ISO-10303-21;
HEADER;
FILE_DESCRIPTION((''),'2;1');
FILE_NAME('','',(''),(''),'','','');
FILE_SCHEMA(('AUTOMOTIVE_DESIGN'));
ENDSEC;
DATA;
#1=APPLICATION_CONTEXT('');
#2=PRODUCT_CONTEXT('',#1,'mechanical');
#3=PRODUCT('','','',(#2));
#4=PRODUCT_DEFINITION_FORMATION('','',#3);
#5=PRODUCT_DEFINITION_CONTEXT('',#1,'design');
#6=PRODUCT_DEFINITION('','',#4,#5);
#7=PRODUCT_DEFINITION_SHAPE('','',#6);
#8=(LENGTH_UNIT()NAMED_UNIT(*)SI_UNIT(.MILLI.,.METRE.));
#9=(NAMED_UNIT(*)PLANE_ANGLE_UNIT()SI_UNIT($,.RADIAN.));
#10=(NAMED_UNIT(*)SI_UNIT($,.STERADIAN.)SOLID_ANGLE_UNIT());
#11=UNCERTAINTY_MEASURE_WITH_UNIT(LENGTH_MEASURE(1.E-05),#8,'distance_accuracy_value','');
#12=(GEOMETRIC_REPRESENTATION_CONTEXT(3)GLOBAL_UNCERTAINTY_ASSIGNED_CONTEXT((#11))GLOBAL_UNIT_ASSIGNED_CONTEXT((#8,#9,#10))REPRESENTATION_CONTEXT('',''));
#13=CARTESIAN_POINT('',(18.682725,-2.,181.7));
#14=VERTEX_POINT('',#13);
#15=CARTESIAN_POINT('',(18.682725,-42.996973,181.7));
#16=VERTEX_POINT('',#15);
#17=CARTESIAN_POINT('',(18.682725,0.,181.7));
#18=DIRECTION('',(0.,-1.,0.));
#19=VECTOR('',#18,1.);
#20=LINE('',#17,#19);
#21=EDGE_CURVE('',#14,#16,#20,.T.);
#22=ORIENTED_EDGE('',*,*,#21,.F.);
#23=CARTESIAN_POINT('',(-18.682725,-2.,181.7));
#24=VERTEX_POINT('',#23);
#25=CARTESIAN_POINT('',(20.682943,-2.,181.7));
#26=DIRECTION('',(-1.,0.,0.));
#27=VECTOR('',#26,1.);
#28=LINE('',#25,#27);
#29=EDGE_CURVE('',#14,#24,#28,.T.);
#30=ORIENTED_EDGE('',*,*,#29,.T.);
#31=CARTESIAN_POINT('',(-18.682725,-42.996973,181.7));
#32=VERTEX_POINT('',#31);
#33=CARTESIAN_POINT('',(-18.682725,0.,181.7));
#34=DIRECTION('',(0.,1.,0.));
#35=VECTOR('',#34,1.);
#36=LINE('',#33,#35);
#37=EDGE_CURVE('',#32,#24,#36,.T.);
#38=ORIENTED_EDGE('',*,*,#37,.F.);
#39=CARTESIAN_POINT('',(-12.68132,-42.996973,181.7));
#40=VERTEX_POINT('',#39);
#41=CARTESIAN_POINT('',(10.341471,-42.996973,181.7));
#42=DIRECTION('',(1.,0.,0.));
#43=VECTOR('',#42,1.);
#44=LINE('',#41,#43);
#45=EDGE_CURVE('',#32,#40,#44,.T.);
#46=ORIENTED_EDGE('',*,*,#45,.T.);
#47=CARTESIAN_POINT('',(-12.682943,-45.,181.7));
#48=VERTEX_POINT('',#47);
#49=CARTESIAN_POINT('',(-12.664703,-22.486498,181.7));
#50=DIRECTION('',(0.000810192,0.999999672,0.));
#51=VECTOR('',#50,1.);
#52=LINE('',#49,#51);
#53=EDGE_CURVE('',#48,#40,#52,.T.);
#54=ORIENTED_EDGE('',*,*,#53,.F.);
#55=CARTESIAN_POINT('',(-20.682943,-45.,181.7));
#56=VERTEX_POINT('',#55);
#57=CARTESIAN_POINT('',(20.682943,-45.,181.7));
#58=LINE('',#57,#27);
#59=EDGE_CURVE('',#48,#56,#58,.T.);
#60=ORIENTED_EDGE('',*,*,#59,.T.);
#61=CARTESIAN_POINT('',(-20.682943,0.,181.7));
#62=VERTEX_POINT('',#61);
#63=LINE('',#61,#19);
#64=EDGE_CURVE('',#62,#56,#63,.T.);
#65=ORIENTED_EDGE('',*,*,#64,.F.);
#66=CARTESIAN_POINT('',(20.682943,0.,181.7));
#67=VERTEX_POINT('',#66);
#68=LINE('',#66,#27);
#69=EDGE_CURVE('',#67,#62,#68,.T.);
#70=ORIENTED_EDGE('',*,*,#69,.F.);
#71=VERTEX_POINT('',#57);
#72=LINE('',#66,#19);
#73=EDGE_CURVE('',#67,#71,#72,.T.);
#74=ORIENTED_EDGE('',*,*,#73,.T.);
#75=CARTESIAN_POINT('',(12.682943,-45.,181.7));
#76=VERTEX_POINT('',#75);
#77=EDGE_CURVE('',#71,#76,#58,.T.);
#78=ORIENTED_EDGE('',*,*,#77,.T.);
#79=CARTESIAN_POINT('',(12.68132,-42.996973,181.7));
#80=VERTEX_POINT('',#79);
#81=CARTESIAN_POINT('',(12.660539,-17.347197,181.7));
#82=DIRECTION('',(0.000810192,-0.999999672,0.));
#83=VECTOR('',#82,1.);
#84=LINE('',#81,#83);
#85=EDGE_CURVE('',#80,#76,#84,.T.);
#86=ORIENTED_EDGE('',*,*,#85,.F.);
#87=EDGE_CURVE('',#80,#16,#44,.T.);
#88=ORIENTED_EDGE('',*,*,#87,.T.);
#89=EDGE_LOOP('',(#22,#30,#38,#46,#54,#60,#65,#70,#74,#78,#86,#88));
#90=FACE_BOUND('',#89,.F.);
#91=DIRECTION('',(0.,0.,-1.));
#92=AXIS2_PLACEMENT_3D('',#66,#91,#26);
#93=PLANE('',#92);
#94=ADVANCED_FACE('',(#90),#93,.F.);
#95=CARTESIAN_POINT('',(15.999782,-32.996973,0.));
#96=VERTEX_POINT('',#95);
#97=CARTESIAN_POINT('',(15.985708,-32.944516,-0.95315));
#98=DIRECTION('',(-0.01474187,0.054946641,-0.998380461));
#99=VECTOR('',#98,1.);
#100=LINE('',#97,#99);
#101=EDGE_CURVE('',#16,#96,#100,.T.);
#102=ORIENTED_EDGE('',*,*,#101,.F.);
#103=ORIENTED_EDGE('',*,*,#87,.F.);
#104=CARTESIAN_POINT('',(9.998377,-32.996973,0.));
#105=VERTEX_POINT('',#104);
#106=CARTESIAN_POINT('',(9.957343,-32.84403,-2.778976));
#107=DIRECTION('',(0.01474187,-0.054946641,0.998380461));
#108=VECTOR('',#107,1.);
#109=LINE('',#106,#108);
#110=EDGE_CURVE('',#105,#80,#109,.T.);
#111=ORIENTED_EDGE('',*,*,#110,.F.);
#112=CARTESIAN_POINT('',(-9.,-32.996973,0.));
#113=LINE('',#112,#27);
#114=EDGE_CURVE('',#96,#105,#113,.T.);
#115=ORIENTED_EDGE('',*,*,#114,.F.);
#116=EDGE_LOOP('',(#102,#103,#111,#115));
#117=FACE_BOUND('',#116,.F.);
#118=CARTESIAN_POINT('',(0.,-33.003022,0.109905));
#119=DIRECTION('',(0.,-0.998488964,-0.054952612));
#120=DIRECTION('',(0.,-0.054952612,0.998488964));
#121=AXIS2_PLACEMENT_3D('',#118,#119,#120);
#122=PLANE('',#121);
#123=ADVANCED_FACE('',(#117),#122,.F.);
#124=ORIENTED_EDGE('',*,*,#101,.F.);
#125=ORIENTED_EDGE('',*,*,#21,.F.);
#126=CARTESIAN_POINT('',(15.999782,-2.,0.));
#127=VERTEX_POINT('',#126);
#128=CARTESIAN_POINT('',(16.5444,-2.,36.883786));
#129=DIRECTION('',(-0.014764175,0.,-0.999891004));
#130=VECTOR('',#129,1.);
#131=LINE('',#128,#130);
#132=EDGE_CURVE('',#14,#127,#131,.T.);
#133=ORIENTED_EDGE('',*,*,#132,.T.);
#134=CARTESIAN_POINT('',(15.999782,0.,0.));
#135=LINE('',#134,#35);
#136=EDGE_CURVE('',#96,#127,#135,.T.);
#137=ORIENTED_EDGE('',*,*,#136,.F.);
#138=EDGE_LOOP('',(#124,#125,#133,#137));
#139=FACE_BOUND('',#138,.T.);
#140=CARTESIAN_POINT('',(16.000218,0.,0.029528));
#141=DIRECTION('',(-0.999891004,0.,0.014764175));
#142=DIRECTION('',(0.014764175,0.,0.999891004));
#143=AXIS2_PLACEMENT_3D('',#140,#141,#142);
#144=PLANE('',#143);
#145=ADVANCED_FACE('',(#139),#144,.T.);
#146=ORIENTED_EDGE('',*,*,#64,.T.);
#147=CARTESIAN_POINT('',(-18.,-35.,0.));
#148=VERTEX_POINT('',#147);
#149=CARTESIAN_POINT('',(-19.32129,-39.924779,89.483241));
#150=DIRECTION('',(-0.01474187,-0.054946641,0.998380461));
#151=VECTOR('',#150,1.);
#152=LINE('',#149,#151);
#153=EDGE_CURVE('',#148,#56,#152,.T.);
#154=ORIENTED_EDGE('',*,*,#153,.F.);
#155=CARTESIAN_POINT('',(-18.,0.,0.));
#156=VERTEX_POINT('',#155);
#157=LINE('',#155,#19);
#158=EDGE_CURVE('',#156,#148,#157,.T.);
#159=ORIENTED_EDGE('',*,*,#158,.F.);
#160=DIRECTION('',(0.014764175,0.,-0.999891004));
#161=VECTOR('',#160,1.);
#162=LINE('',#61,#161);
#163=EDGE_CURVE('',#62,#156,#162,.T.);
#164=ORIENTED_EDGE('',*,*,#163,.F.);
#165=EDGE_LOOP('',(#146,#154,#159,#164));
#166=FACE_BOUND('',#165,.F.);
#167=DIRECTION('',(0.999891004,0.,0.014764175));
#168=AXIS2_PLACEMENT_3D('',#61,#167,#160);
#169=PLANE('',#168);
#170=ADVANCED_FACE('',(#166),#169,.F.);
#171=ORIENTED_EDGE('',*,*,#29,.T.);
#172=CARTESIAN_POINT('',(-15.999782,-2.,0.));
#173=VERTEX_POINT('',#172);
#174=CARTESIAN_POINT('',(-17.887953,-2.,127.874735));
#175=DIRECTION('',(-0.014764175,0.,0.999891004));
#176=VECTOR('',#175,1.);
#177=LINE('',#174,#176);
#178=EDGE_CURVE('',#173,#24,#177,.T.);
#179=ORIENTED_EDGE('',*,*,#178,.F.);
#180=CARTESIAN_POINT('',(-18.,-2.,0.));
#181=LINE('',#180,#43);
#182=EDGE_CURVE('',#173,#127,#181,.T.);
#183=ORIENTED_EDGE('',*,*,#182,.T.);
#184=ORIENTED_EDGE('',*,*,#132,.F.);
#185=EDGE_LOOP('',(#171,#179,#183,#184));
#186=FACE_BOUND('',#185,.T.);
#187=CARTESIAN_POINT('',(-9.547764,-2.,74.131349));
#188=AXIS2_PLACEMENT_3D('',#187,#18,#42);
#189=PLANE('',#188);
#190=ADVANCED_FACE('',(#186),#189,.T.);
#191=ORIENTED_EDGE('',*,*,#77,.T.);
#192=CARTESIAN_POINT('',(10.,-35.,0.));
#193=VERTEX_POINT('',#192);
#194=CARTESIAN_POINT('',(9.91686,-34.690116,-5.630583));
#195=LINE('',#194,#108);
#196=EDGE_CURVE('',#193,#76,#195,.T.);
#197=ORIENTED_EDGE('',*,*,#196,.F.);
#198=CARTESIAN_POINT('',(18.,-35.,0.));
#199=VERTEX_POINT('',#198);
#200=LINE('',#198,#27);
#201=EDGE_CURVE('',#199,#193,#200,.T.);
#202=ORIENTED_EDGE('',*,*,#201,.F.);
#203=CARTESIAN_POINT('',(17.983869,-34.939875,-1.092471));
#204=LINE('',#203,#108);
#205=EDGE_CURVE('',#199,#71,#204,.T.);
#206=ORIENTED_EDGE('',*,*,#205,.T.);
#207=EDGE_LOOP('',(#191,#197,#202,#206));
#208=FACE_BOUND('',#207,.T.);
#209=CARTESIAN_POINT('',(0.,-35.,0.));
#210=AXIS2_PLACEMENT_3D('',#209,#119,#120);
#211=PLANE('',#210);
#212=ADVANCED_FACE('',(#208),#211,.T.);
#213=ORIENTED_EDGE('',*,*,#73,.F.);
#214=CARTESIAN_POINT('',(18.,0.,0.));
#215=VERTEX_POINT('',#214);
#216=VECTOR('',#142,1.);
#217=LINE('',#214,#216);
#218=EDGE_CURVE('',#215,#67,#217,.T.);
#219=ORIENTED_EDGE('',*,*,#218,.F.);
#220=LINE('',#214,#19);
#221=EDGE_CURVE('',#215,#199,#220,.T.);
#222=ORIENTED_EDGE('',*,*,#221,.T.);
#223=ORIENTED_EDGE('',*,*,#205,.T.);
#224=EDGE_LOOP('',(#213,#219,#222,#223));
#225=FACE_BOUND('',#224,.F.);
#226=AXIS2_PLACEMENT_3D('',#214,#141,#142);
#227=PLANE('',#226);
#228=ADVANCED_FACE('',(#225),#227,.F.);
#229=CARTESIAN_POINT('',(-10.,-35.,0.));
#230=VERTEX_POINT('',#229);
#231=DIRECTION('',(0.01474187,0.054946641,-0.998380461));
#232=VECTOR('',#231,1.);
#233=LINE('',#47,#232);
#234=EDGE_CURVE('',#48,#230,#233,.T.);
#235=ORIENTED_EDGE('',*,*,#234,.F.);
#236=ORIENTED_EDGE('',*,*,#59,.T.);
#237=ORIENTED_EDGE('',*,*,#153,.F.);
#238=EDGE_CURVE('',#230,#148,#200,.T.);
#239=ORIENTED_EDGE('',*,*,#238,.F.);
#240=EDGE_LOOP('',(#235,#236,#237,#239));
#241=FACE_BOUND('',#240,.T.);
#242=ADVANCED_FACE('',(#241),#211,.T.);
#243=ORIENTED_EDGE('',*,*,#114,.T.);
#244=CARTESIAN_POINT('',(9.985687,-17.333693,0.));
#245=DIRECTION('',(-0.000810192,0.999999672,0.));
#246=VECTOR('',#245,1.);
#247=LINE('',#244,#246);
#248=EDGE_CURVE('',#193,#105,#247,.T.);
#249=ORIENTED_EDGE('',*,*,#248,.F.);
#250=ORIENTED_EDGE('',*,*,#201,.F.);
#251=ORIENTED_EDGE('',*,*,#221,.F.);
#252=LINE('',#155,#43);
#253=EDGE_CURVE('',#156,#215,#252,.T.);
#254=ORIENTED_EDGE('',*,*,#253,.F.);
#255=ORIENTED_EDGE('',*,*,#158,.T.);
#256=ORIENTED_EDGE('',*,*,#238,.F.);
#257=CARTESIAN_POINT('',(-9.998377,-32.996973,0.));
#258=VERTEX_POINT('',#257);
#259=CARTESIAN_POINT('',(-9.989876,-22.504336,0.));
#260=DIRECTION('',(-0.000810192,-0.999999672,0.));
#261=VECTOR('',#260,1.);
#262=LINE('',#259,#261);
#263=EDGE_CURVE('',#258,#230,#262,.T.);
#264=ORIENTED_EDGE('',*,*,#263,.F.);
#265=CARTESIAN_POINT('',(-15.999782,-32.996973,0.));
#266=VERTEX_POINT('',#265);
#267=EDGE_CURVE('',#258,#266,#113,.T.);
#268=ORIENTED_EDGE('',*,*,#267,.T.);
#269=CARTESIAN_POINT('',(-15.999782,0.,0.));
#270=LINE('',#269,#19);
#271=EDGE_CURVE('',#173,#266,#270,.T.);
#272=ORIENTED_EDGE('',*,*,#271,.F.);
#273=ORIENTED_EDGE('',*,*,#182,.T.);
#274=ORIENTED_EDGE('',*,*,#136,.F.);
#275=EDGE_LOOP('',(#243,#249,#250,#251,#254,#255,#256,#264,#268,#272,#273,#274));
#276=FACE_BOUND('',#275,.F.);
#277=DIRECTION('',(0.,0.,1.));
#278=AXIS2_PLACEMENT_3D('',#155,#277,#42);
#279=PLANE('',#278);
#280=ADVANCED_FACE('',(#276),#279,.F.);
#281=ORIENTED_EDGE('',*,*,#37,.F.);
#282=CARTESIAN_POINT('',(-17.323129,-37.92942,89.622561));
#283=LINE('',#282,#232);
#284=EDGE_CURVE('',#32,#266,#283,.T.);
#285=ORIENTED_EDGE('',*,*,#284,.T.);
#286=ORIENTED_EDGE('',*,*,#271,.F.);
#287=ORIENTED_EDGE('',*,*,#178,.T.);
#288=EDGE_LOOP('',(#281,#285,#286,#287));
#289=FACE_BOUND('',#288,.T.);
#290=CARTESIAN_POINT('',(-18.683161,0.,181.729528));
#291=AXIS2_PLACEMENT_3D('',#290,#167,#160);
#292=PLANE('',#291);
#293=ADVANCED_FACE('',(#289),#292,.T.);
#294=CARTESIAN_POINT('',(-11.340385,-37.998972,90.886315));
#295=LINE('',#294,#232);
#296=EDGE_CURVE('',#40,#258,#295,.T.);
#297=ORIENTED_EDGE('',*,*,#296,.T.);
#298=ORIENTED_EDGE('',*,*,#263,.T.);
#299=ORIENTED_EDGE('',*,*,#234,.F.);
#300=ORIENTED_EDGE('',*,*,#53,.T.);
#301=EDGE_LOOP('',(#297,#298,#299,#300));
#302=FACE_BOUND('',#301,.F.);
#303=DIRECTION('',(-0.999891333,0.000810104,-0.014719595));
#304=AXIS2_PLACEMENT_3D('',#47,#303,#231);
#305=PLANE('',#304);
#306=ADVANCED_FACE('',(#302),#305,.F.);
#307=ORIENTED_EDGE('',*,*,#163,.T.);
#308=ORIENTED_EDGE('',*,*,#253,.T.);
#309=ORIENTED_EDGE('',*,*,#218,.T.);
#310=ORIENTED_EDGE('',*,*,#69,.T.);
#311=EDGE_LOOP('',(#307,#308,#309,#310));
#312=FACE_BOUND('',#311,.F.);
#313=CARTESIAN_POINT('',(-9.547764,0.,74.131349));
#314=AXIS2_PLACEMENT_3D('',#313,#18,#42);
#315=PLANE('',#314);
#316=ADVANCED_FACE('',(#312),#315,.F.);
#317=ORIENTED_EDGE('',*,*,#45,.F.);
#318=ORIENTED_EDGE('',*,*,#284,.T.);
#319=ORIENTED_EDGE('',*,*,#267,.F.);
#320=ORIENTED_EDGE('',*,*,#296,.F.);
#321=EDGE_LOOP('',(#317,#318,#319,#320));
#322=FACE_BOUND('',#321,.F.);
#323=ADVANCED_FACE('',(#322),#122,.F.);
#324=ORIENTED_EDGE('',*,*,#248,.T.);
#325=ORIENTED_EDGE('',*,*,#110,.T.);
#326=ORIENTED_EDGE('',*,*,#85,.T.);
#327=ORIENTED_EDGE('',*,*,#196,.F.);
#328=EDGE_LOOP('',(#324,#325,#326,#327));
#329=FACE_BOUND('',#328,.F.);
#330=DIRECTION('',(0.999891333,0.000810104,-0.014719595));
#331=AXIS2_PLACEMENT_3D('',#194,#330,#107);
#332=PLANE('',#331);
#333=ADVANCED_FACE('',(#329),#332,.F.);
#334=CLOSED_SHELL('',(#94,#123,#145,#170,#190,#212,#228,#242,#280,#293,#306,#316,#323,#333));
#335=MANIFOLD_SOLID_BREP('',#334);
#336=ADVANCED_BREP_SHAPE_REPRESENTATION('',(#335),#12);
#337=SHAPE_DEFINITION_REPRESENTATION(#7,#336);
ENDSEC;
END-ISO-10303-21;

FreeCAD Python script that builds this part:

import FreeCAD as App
import Part
import Sketcher
from FreeCAD import Vector


def faces_at(feature, points):
    """Names of the faces that lie closest to the given points."""
    faces = feature.Shape.Faces
    near = lambda p: min(range(len(faces)), key=lambda i: faces[i].distToShape(Part.Vertex(*p))[0])
    return sorted({f"Face{near(p) + 1}" for p in points})


def add_polygon(sketch, points):
    """Adds a closed chain of lines whose ends are joined by coincident constraints."""
    first, n = sketch.GeometryCount, len(points)
    for a, b in zip(points, points[1:] + points[:1]):
        sketch.addGeometry(Part.LineSegment(App.Vector(*a, 0), App.Vector(*b, 0)), False)
    for i in range(n):
        sketch.addConstraint(Sketcher.Constraint("Coincident", first + i, 2, first + (i + 1) % n, 1))

doc = App.newDocument("Part")
body = doc.addObject("PartDesign::Body", "Body")

# Sketch on XZ plane
sketch1 = doc.addObject("Sketcher::SketchObject", "Sketch")
body.addObject(sketch1)
sketch1.AttachmentSupport = (doc.XZ_Plane, [""])
sketch1.MapMode = "FlatFace"
add_polygon(sketch1, [(-18, 0), (18, 0), (20.682943, 181.7), (-20.682943, 181.7)])  # lines 0-3
sketch1.addConstraint([
    Sketcher.Constraint("Horizontal", 0),
    Sketcher.Constraint("Horizontal", 2),
    Sketcher.Constraint("Symmetric", 0, 2, 3, 2, -1, 1),
    Sketcher.Constraint("Equal", 1, 3),
    Sketcher.Constraint("DistanceX", 0, 1, 0, 2, 36.0),
    Sketcher.Constraint("DistanceY", -1, 1, 1, 2, 181.7),
    Sketcher.Constraint("DistanceX", 2, 2, 2, 1, 41.365886),
])
pad1 = doc.addObject("PartDesign::Pad", "Pad")
body.addObject(pad1)
pad1.Profile = sketch1
pad1.Length = 50

# Sketch on YZ plane
sketch2 = doc.addObject("Sketcher::SketchObject", "Sketch001")
body.addObject(sketch2)
sketch2.AttachmentSupport = (doc.YZ_Plane, [""])
sketch2.MapMode = "FlatFace"
add_polygon(sketch2, [(-45, 181.7), (-50, 181.7), (-50, 0), (-35, 0)])  # lines 0-3
sketch2.addConstraint([
    Sketcher.Constraint("Horizontal", 0),
    Sketcher.Constraint("Vertical", 1),
    Sketcher.Constraint("Horizontal", 2),
    Sketcher.Constraint("PointOnObject", 1, 2, -1),
    Sketcher.Constraint("DistanceX", 0, 2, 0, 1, 5.0),
    Sketcher.Constraint("DistanceX", 2, 1, 2, 2, 15.0),
    Sketcher.Constraint("DistanceY", 1, 2, 1, 1, 181.7),
    Sketcher.Constraint("DistanceX", 0, 2, -1, 1, 50.0),
])
pocket1 = doc.addObject("PartDesign::Pocket", "Pocket")
body.addObject(pocket1)
pocket1.Profile = sketch2
pocket1.Type = "ThroughAll"
pocket1.Midplane = True
doc.recompute()

thickness = doc.addObject("PartDesign::Thickness", "Thickness")
body.addObject(thickness)
thickness.Base = (pocket1, faces_at(pocket1, [(0, -22.5, 181.7), (0, -17.5, 0)]))
thickness.Value = 2
thickness.Reversed = True
thickness.Join = "Arc"

# Sketch on an angled plane
sketch3 = doc.addObject("Sketcher::SketchObject", "Sketch002")
body.addObject(sketch3)
sketch3.Placement = App.Placement(Vector(0, -34.894307, -1.920435), App.Rotation(Vector(1, 0, 0), Vector(0, -0.054952612, 0.998488964), Vector(0, -0.998488964, -0.054952612), "ZXY"))
add_polygon(sketch3, [(12.682943, 183.898312), (-12.682943, 183.898312), (-9.91686, -3.715763), (9.91686, -3.715763)])  # lines 0-3
sketch3.addConstraint([
    Sketcher.Constraint("Horizontal", 0),
    Sketcher.Constraint("Horizontal", 2),
    Sketcher.Constraint("Equal", 1, 3),
    Sketcher.Constraint("DistanceX", 2, 1, 2, 2, 19.83372),
    Sketcher.Constraint("DistanceX", 0, 2, 0, 1, 25.365886),
    Sketcher.Constraint("DistanceX", 1, 2, -1, 1, 9.91686),
    Sketcher.Constraint("Distance", 1, 187.634465),
    Sketcher.Constraint("DistanceY", -1, 1, 0, 2, 183.898312),
])
pocket2 = doc.addObject("PartDesign::Pocket", "Pocket001")
body.addObject(pocket2)
pocket2.Profile = sketch3
pocket2.Length = 25

doc.recompute()
